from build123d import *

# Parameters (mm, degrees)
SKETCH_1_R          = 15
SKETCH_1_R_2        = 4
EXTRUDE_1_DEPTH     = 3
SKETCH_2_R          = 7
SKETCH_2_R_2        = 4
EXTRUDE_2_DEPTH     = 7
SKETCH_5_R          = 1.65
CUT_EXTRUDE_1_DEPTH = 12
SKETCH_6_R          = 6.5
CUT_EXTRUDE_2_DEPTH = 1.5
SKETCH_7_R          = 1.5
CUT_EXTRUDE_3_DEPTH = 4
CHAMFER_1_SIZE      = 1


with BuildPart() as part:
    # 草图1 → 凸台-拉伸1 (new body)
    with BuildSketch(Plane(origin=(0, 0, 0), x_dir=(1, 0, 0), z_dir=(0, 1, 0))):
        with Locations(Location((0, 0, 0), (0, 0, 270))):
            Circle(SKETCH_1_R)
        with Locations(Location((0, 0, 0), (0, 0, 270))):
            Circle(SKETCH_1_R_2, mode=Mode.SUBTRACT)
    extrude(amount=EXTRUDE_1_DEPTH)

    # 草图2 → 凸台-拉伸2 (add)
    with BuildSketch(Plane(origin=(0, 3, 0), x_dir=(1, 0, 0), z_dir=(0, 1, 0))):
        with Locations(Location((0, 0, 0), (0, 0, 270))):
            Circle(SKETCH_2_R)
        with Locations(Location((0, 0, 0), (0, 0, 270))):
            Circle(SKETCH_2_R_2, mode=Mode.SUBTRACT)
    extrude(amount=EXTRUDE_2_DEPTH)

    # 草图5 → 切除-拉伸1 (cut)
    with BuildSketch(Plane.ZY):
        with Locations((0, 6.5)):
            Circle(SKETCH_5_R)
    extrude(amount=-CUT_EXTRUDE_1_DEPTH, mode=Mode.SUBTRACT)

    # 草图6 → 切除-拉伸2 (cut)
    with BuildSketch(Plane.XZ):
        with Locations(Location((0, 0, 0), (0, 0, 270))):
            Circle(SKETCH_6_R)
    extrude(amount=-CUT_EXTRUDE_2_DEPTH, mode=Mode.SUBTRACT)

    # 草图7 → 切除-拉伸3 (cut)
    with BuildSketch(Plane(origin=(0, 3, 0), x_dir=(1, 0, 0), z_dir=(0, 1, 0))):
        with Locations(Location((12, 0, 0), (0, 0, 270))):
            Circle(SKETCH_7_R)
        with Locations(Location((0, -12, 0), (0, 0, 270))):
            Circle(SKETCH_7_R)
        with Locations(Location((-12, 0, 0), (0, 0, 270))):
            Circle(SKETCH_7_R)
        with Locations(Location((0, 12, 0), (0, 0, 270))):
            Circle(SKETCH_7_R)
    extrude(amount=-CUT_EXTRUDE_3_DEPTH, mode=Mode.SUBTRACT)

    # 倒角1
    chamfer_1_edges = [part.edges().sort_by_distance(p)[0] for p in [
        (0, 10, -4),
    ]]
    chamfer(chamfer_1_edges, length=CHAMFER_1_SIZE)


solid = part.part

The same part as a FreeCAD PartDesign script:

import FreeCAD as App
import Part
import Sketcher

V = App.Vector


def edges_at(feature, points):
    """Names of the edges that pass closest to the given points."""
    edges = feature.Shape.Edges
    near = lambda p: min(range(len(edges)), key=lambda i: edges[i].distToShape(Part.Vertex(*p))[0])
    return sorted({f"Edge{near(p) + 1}" for p in points})

doc = App.newDocument("Part")
body = doc.addObject("PartDesign::Body", "Body")

# Sketch on XZ plane
sketch1 = doc.addObject("Sketcher::SketchObject", "Sketch")
body.addObject(sketch1)
sketch1.AttachmentSupport = (doc.XZ_Plane, [""])
sketch1.MapMode = "FlatFace"
sketch1.addGeometry([
    Part.Circle(V(0, 0, 0), V(0, 0, 1), 15),
    Part.Circle(V(0, 0, 0), V(0, 0, 1), 4),
], False)
sketch1.addConstraint([
    Sketcher.Constraint("Coincident", 0, 3, -1, 1),
    Sketcher.Constraint("Coincident", 1, 3, -1, 1),
    Sketcher.Constraint("Diameter", 0, 30.0),
    Sketcher.Constraint("Diameter", 1, 8.0),
])
pad1 = doc.addObject("PartDesign::Pad", "Pad")
body.addObject(pad1)
pad1.Profile = sketch1
pad1.Length = 3
pad1.Reversed = True

# Sketch on XZ plane
sketch2 = doc.addObject("Sketcher::SketchObject", "Sketch001")
body.addObject(sketch2)
sketch2.AttachmentSupport = (doc.XZ_Plane, [""])
sketch2.MapMode = "FlatFace"
sketch2.AttachmentOffset = App.Placement(V(0, 0, -3), App.Rotation())
sketch2.addGeometry([
    Part.Circle(V(0, 0, 0), V(0, 0, 1), 7),
    Part.Circle(V(0, 0, 0), V(0, 0, 1), 4),
], False)
sketch2.addConstraint([
    Sketcher.Constraint("Coincident", 0, 3, -1, 1),
    Sketcher.Constraint("Coincident", 1, 3, -1, 1),
    Sketcher.Constraint("Diameter", 0, 14.0),
    Sketcher.Constraint("Diameter", 1, 8.0),
])
pad2 = doc.addObject("PartDesign::Pad", "Pad001")
body.addObject(pad2)
pad2.Profile = sketch2
pad2.Length = 7
pad2.Reversed = True

# Sketch on YZ plane
sketch3 = doc.addObject("Sketcher::SketchObject", "Sketch002")
body.addObject(sketch3)
sketch3.AttachmentSupport = (doc.YZ_Plane, [""])
sketch3.MapMode = "FlatFace"
sketch3.addGeometry(Part.Circle(V(6.5, 0, 0), V(0, 0, 1), 1.6), False)
sketch3.addConstraint([
    Sketcher.Constraint("PointOnObject", 0, 3, -1),
    Sketcher.Constraint("Diameter", 0, 3.3),
    Sketcher.Constraint("DistanceX", -1, 1, 0, 3, 6.5),
])
pocket1 = doc.addObject("PartDesign::Pocket", "Pocket")
body.addObject(pocket1)
pocket1.Profile = sketch3
pocket1.Length = 12
pocket1.Reversed = True

# Sketch on XZ plane
sketch4 = doc.addObject("Sketcher::SketchObject", "Sketch003")
body.addObject(sketch4)
sketch4.AttachmentSupport = (doc.XZ_Plane, [""])
sketch4.MapMode = "FlatFace"
sketch4.addGeometry(Part.Circle(V(0, 0, 0), V(0, 0, 1), 6), False)
sketch4.addConstraint([
    Sketcher.Constraint("Coincident", 0, 3, -1, 1),
    Sketcher.Constraint("Diameter", 0, 13.0),
])
pocket2 = doc.addObject("PartDesign::Pocket", "Pocket001")
body.addObject(pocket2)
pocket2.Profile = sketch4
pocket2.Length = 1.5

# Sketch on XZ plane
sketch5 = doc.addObject("Sketcher::SketchObject", "Sketch004")
body.addObject(sketch5)
sketch5.AttachmentSupport = (doc.XZ_Plane, [""])
sketch5.MapMode = "FlatFace"
sketch5.AttachmentOffset = App.Placement(V(0, 0, -3), App.Rotation())
sketch5.addGeometry([
    Part.Circle(V(12, 0, 0), V(0, 0, 1), 1.5),
    Part.Circle(V(0, 12, 0), V(0, 0, 1), 1.5),
    Part.Circle(V(-12, 0, 0), V(0, 0, 1), 1.5),
    Part.Circle(V(0, -12, 0), V(0, 0, 1), 1.5),
], False)
sketch5.addConstraint([
    Sketcher.Constraint("Equal", 0, 1),
    Sketcher.Constraint("Equal", 1, 2),
    Sketcher.Constraint("Equal", 2, 3),
    Sketcher.Constraint("Symmetric", 0, 3, 2, 3, -1, 1),
    Sketcher.Constraint("Symmetric", 1, 3, 3, 3, -1, 1),
    Sketcher.Constraint("PointOnObject", 0, 3, -1),
    Sketcher.Constraint("PointOnObject", 1, 3, -2),
    Sketcher.Constraint("Diameter", 0, 3.0),
    Sketcher.Constraint("DistanceX", -1, 1, 0, 3, 12.0),
    Sketcher.Constraint("DistanceY", -1, 1, 1, 3, 12.0),
])
pocket3 = doc.addObject("PartDesign::Pocket", "Pocket002")
body.addObject(pocket3)
pocket3.Profile = sketch5
pocket3.Length = 4
pocket3.Reversed = True
doc.recompute()

chamfer = doc.addObject("PartDesign::Chamfer", "Chamfer")
body.addObject(chamfer)
chamfer.Base = (pocket3, edges_at(pocket3, [(0, 10, -4)]))
chamfer.Size = 1

doc.recompute()
